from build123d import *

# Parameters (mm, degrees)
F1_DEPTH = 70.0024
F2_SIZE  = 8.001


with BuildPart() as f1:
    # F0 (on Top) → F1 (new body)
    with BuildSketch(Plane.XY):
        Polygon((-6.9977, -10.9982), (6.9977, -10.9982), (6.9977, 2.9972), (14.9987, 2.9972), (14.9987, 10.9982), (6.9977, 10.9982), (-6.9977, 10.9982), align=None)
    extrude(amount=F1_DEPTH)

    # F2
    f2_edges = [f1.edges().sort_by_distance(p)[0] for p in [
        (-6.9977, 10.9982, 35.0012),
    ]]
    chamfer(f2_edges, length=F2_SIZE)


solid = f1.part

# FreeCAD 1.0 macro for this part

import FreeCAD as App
import Part
import Sketcher
Q = App.Units.Quantity


def edges_at(feature, points):
    """Names of the edges that pass closest to the given points."""
    edges = feature.Shape.Edges
    near = lambda p: min(range(len(edges)), key=lambda i: edges[i].distToShape(Part.Vertex(*p))[0])
    return sorted({f"Edge{near(p) + 1}" for p in points})


def add_polygon(sketch, points):
    """Adds a closed chain of lines whose ends are joined by coincident constraints."""
    first, n = sketch.GeometryCount, len(points)
    for a, b in zip(points, points[1:] + points[:1]):
        sketch.addGeometry(Part.LineSegment(App.Vector(*a, 0), App.Vector(*b, 0)), False)
    for i in range(n):
        sketch.addConstraint(Sketcher.Constraint("Coincident", first + i, 2, first + (i + 1) % n, 1))

doc = App.newDocument("Part")
body = doc.addObject("PartDesign::Body", "Body")

# Sketch on XY plane
sketch1 = body.newObject("Sketcher::SketchObject", "Sketch")
sketch1.AttachmentSupport = (doc.getObject("XY_Plane"), [""])
sketch1.MapMode = "FlatFace"
add_polygon(sketch1, [(-7, -11), (7, -11), (7, 3), (15, 3), (15, 11), (-7, 11)])  # lines 0-5
sketch1.addConstraint([
    Sketcher.Constraint("Horizontal", 0),
    Sketcher.Constraint("Vertical", 1),
    Sketcher.Constraint("Horizontal", 2),
    Sketcher.Constraint("Vertical", 3),
    Sketcher.Constraint("Horizontal", 4),
    Sketcher.Constraint("Vertical", 5),
    Sketcher.Constraint("Symmetric", 0, 2, 4, 2, -1, 1),
    Sketcher.Constraint("Equal", 0, 1),
    Sketcher.Constraint("Equal", 2, 3),
    Sketcher.Constraint("DistanceX", 0, 1, 0, 2, Q("0.551 in")),
    Sketcher.Constraint("DistanceX", 2, 1, 2, 2, Q("0.315 in")),
])
pad1 = body.newObject("PartDesign::Pad", "Pad")
pad1.Profile = sketch1
pad1.Length = Q("2.756 in")
doc.recompute()

chamfer = body.newObject("PartDesign::Chamfer", "Chamfer")
chamfer.Base = (pad1, edges_at(pad1, [(-6.998, 10.998, 35.001)]))
chamfer.Size = Q("0.315 in")

doc.recompute()
